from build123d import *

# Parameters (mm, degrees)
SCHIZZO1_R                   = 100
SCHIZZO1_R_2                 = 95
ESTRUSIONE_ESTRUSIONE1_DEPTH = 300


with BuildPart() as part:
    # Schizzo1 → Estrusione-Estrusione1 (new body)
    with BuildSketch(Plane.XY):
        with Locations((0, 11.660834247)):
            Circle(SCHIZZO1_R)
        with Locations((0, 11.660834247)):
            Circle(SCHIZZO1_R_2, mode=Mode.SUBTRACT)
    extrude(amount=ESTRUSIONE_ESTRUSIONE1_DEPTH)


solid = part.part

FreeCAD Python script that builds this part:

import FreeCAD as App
import Part
import Sketcher
from FreeCAD import Vector

doc = App.newDocument("Part")
params = doc.addObject("Spreadsheet::Sheet", "Params")
for row, (alias, value) in enumerate([
    ("sketch1_diameter", "200 mm"),
    ("sketch1_diameter2", "190 mm"),
    ("pad1_length", "300 mm"),
], start=1):
    params.set(f"A{row}", alias)
    params.set(f"B{row}", "=" + value)
    params.setAlias(f"B{row}", alias)

body = doc.addObject("PartDesign::Body", "Body")

sketch1 = doc.addObject("Sketcher::SketchObject", "Sketch")
body.addObject(sketch1)
sketch1.AttachmentSupport = (doc.XY_Plane, [""])
sketch1.MapMode = "FlatFace"
sketch1.addGeometry([
    Part.Circle(Vector(0, 12, 0), Vector(0, 0, 1), 100),
    Part.Circle(Vector(0, 12, 0), Vector(0, 0, 1), 95),
], False)
sketch1.addConstraint([
    Sketcher.Constraint("Coincident", 1, 3, 0, 3),
    Sketcher.Constraint("PointOnObject", 0, 3, -2),
    Sketcher.Constraint("Diameter", 0, 200.0),
    Sketcher.Constraint("Diameter", 1, 190.0),
    Sketcher.Constraint("DistanceY", -1, 1, 0, 3, 11.660834),
])
sketch1.setExpression("Constraints[2]", "Params.sketch1_diameter")
sketch1.setExpression("Constraints[3]", "Params.sketch1_diameter2")
pad1 = doc.addObject("PartDesign::Pad", "Pad")
body.addObject(pad1)
pad1.Profile = sketch1
pad1.setExpression("Length", "Params.pad1_length")

doc.recompute()
